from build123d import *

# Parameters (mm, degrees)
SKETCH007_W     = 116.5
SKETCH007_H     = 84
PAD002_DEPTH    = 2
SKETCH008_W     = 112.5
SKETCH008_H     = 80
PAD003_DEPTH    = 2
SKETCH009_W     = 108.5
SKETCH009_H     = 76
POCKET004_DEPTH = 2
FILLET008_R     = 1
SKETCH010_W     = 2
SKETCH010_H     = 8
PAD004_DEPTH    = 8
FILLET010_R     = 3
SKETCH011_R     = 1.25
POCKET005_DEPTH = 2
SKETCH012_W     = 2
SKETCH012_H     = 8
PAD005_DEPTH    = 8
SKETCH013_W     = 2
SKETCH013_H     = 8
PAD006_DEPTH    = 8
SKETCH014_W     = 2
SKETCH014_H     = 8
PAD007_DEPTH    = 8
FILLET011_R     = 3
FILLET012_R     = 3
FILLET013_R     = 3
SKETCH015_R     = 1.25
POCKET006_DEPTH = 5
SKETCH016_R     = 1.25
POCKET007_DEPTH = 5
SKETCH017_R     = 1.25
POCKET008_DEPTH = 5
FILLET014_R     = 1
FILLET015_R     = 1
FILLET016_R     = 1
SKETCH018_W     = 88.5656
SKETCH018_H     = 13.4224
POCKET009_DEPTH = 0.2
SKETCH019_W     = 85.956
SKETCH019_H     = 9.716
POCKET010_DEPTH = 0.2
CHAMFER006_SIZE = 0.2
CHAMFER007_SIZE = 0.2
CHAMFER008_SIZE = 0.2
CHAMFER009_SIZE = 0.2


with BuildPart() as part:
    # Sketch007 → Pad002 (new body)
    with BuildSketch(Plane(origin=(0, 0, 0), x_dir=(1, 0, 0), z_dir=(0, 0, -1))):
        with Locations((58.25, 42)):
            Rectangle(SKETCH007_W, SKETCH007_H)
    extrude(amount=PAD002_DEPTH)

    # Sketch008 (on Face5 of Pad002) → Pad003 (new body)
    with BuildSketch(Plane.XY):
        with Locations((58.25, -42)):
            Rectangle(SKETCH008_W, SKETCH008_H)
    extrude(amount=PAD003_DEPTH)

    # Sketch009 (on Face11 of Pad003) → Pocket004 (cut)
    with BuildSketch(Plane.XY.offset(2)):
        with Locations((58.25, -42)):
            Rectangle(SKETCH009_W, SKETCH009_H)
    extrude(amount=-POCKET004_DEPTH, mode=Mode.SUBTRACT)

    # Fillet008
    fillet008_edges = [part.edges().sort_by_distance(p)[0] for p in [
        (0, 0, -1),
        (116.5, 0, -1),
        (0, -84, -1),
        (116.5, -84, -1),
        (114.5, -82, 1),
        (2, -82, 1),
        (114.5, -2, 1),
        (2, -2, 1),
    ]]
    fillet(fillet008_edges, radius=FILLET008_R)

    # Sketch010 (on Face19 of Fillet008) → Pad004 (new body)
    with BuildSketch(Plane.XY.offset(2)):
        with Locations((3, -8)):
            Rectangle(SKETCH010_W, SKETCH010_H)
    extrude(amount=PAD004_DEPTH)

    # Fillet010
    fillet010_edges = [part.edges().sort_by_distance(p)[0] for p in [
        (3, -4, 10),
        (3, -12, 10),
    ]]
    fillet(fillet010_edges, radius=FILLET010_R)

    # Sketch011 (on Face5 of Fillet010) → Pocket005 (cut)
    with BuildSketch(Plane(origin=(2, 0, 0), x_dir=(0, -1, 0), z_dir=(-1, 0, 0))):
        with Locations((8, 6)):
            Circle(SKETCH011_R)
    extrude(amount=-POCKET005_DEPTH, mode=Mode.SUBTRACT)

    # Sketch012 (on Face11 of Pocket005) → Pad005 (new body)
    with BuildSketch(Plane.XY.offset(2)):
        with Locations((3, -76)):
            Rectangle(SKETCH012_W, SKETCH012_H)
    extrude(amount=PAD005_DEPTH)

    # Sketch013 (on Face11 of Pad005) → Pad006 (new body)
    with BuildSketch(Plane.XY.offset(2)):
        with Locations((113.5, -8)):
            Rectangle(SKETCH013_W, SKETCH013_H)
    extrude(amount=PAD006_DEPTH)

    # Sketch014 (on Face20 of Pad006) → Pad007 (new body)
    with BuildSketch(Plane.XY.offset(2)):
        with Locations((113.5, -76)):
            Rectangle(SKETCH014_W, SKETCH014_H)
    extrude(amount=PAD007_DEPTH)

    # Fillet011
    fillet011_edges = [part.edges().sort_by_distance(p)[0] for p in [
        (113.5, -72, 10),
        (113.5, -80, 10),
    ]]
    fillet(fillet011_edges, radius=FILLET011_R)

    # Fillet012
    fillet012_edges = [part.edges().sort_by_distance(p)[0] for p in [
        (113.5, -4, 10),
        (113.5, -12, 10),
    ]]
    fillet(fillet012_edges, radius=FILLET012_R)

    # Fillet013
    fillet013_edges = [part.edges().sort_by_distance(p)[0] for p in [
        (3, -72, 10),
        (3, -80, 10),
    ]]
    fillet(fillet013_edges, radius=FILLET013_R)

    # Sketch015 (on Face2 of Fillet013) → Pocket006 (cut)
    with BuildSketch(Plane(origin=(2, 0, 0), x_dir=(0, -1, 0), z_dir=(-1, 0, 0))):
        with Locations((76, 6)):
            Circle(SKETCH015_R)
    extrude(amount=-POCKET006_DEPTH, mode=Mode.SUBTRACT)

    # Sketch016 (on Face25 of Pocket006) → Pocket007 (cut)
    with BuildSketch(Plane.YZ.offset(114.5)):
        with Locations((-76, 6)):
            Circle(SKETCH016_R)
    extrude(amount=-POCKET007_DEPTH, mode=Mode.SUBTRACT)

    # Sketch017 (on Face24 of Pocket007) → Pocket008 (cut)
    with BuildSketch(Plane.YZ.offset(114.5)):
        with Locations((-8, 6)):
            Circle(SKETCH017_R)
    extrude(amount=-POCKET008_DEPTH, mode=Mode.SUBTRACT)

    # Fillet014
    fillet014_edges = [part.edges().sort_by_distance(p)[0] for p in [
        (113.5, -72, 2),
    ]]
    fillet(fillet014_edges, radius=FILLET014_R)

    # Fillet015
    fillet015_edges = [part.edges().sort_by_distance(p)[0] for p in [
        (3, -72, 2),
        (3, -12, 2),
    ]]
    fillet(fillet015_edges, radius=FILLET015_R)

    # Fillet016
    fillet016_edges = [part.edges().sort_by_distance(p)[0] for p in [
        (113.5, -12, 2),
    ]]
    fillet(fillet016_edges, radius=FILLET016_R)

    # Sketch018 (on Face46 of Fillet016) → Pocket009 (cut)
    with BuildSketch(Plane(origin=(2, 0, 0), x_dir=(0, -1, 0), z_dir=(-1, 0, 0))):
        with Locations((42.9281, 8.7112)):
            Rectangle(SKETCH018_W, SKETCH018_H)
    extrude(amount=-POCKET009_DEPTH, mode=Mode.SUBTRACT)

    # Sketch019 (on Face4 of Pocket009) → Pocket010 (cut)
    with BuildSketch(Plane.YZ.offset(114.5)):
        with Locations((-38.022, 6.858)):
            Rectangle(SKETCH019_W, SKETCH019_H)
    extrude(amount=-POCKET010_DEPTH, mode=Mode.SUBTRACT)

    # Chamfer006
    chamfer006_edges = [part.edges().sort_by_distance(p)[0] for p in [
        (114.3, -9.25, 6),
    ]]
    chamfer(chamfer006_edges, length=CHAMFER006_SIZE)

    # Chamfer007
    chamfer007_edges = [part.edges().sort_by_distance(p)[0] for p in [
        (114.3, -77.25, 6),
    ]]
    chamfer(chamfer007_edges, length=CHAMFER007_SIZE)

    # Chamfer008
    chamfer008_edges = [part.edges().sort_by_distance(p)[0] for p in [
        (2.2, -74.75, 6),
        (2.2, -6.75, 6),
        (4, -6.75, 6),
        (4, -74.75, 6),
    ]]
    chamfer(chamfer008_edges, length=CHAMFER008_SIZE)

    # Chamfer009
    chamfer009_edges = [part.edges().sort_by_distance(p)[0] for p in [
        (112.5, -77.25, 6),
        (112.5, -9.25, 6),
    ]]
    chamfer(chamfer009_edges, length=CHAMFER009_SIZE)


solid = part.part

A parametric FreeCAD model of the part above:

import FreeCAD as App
import Part
import Sketcher

V = App.Vector


def edges_at(feature, points):
    """Names of the edges that pass closest to the given points."""
    edges = feature.Shape.Edges
    near = lambda p: min(range(len(edges)), key=lambda i: edges[i].distToShape(Part.Vertex(*p))[0])
    return sorted({f"Edge{near(p) + 1}" for p in points})

doc = App.newDocument("Part")
body = doc.addObject("PartDesign::Body", "Body")

# Sketch on XY plane
sketch1 = doc.addObject("Sketcher::SketchObject", "Sketch")
body.addObject(sketch1)
sketch1.AttachmentSupport = (doc.XY_Plane, [""])
sketch1.MapMode = "FlatFace"
sketch1.addGeometry(Part.LineSegment(V(0, -84, 0), V(0, 0, 0)), False)
sketch1.addGeometry(Part.LineSegment(V(0, 0, 0), V(116, 0, 0)), False)
sketch1.addGeometry(Part.LineSegment(V(116, 0, 0), V(116, -84, 0)), False)
sketch1.addGeometry(Part.LineSegment(V(116, -84, 0), V(0, -84, 0)), False)
sketch1.addConstraint(Sketcher.Constraint("Coincident", 0, 2, 1, 1))
sketch1.addConstraint(Sketcher.Constraint("Coincident", 1, 2, 2, 1))
sketch1.addConstraint(Sketcher.Constraint("Coincident", 2, 2, 3, 1))
sketch1.addConstraint(Sketcher.Constraint("Coincident", 3, 2, 0, 1))
sketch1.addConstraint(Sketcher.Constraint("Vertical", 0))
sketch1.addConstraint(Sketcher.Constraint("Horizontal", 1))
sketch1.addConstraint(Sketcher.Constraint("Vertical", 2))
sketch1.addConstraint(Sketcher.Constraint("Horizontal", 3))
sketch1.addConstraint(Sketcher.Constraint("Coincident", 0, 2, -1, 1))
sketch1.addConstraint(Sketcher.Constraint("DistanceY", 0, 1, 0, 2, 84.0))
sketch1.addConstraint(Sketcher.Constraint("DistanceX", 1, 1, 1, 2, 116.5))
pad1 = doc.addObject("PartDesign::Pad", "Pad")
body.addObject(pad1)
pad1.Profile = sketch1
pad1.Length = 2
pad1.Reversed = True

# Sketch on XY plane
sketch2 = doc.addObject("Sketcher::SketchObject", "Sketch001")
body.addObject(sketch2)
sketch2.AttachmentSupport = (doc.XY_Plane, [""])
sketch2.MapMode = "FlatFace"
sketch2.addGeometry(Part.LineSegment(V(2, -2, 0), V(2, -82, 0)), False)
sketch2.addGeometry(Part.LineSegment(V(2, -82, 0), V(114, -82, 0)), False)
sketch2.addGeometry(Part.LineSegment(V(114, -82, 0), V(114, -2, 0)), False)
sketch2.addGeometry(Part.LineSegment(V(114, -2, 0), V(2, -2, 0)), False)
sketch2.addConstraint(Sketcher.Constraint("Coincident", 0, 2, 1, 1))
sketch2.addConstraint(Sketcher.Constraint("Coincident", 1, 2, 2, 1))
sketch2.addConstraint(Sketcher.Constraint("Coincident", 2, 2, 3, 1))
sketch2.addConstraint(Sketcher.Constraint("Coincident", 3, 2, 0, 1))
sketch2.addConstraint(Sketcher.Constraint("Vertical", 0))
sketch2.addConstraint(Sketcher.Constraint("Horizontal", 1))
sketch2.addConstraint(Sketcher.Constraint("Vertical", 2))
sketch2.addConstraint(Sketcher.Constraint("Horizontal", 3))
sketch2.addConstraint(Sketcher.Constraint("DistanceY", 0, 2, 0, 1, 80.0))
sketch2.addConstraint(Sketcher.Constraint("DistanceX", 1, 1, 1, 2, 112.5))
sketch2.addConstraint(Sketcher.Constraint("DistanceX", -1, 1, 0, 2, 2.0))
sketch2.addConstraint(Sketcher.Constraint("DistanceY", 0, 2, -1, 1, 82.0))
pad2 = doc.addObject("PartDesign::Pad", "Pad001")
body.addObject(pad2)
pad2.Profile = sketch2
pad2.Length = 2

# Sketch on XY plane
sketch3 = doc.addObject("Sketcher::SketchObject", "Sketch002")
body.addObject(sketch3)
sketch3.AttachmentSupport = (doc.XY_Plane, [""])
sketch3.MapMode = "FlatFace"
sketch3.AttachmentOffset = App.Placement(V(0, 0, 2), App.Rotation())
sketch3.addGeometry(Part.LineSegment(V(4, -4, 0), V(4, -80, 0)), False)
sketch3.addGeometry(Part.LineSegment(V(4, -80, 0), V(112, -80, 0)), False)
sketch3.addGeometry(Part.LineSegment(V(112, -80, 0), V(112, -4, 0)), False)
sketch3.addGeometry(Part.LineSegment(V(112, -4, 0), V(4, -4, 0)), False)
sketch3.addConstraint(Sketcher.Constraint("Coincident", 0, 2, 1, 1))
sketch3.addConstraint(Sketcher.Constraint("Coincident", 1, 2, 2, 1))
sketch3.addConstraint(Sketcher.Constraint("Coincident", 2, 2, 3, 1))
sketch3.addConstraint(Sketcher.Constraint("Coincident", 3, 2, 0, 1))
sketch3.addConstraint(Sketcher.Constraint("Vertical", 0))
sketch3.addConstraint(Sketcher.Constraint("Horizontal", 1))
sketch3.addConstraint(Sketcher.Constraint("Vertical", 2))
sketch3.addConstraint(Sketcher.Constraint("Horizontal", 3))
sketch3.addConstraint(Sketcher.Constraint("DistanceY", 0, 2, 0, 1, 76.0))
sketch3.addConstraint(Sketcher.Constraint("DistanceX", 1, 1, 1, 2, 108.5))
sketch3.addConstraint(Sketcher.Constraint("DistanceX", -1, 1, 0, 2, 4.0))
sketch3.addConstraint(Sketcher.Constraint("DistanceY", 0, 2, -1, 1, 80.0))
pocket1 = doc.addObject("PartDesign::Pocket", "Pocket")
body.addObject(pocket1)
pocket1.Profile = sketch3
pocket1.Length = 2
doc.recompute()

fillet = doc.addObject("PartDesign::Fillet", "Fillet")
body.addObject(fillet)
fillet.Base = (pocket1, edges_at(pocket1, [
    (0, 0, -1),
    (116.5, 0, -1),
    (0, -84, -1),
    (116.5, -84, -1),
    (114.5, -82, 1),
    (2, -82, 1),
    (114.5, -2, 1),
    (2, -2, 1),
]))
fillet.Radius = 1

# Sketch on XY plane
sketch4 = doc.addObject("Sketcher::SketchObject", "Sketch003")
body.addObject(sketch4)
sketch4.AttachmentSupport = (doc.XY_Plane, [""])
sketch4.MapMode = "FlatFace"
sketch4.AttachmentOffset = App.Placement(V(0, 0, 2), App.Rotation())
sketch4.addGeometry(Part.LineSegment(V(2, -4, 0), V(2, -12, 0)), False)
sketch4.addGeometry(Part.LineSegment(V(2, -12, 0), V(4, -12, 0)), False)
sketch4.addGeometry(Part.LineSegment(V(4, -12, 0), V(4, -4, 0)), False)
sketch4.addGeometry(Part.LineSegment(V(4, -4, 0), V(2, -4, 0)), False)
sketch4.addConstraint(Sketcher.Constraint("Coincident", 0, 2, 1, 1))
sketch4.addConstraint(Sketcher.Constraint("Coincident", 1, 2, 2, 1))
sketch4.addConstraint(Sketcher.Constraint("Coincident", 2, 2, 3, 1))
sketch4.addConstraint(Sketcher.Constraint("Coincident", 3, 2, 0, 1))
sketch4.addConstraint(Sketcher.Constraint("Vertical", 0))
sketch4.addConstraint(Sketcher.Constraint("Horizontal", 1))
sketch4.addConstraint(Sketcher.Constraint("Vertical", 2))
sketch4.addConstraint(Sketcher.Constraint("Horizontal", 3))
sketch4.addConstraint(Sketcher.Constraint("DistanceX", 1, 1, 1, 2, 2.0))
sketch4.addConstraint(Sketcher.Constraint("DistanceY", 0, 2, 0, 1, 8.0))
sketch4.addConstraint(Sketcher.Constraint("DistanceX", -1, 1, 0, 2, 2.0))
sketch4.addConstraint(Sketcher.Constraint("DistanceY", 0, 2, -1, 1, 12.0))
pad3 = doc.addObject("PartDesign::Pad", "Pad002")
body.addObject(pad3)
pad3.Profile = sketch4
pad3.Length = 8
doc.recompute()

fillet2 = doc.addObject("PartDesign::Fillet", "Fillet001")
body.addObject(fillet2)
fillet2.Base = (pad3, edges_at(pad3, [(3, -4, 10), (3, -12, 10)]))
fillet2.Radius = 3

# Sketch on YZ plane
sketch5 = doc.addObject("Sketcher::SketchObject", "Sketch004")
body.addObject(sketch5)
sketch5.AttachmentSupport = (doc.YZ_Plane, [""])
sketch5.MapMode = "FlatFace"
sketch5.AttachmentOffset = App.Placement(V(0, 0, 2), App.Rotation())
sketch5.addGeometry(Part.Circle(V(-8, 6, 0), V(0, 0, 1), 1.2), False)
sketch5.addConstraint(Sketcher.Constraint("Diameter", 0, 2.5))
sketch5.addConstraint(Sketcher.Constraint("DistanceX", 0, 3, -1, 1, 8.0))
sketch5.addConstraint(Sketcher.Constraint("DistanceY", -1, 1, 0, 3, 6.0))
pocket2 = doc.addObject("PartDesign::Pocket", "Pocket001")
body.addObject(pocket2)
pocket2.Profile = sketch5
pocket2.Length = 2
pocket2.Reversed = True

# Sketch on XY plane
sketch6 = doc.addObject("Sketcher::SketchObject", "Sketch005")
body.addObject(sketch6)
sketch6.AttachmentSupport = (doc.XY_Plane, [""])
sketch6.MapMode = "FlatFace"
sketch6.AttachmentOffset = App.Placement(V(0, 0, 2), App.Rotation())
sketch6.addGeometry(Part.LineSegment(V(2, -72, 0), V(2, -80, 0)), False)
sketch6.addGeometry(Part.LineSegment(V(2, -80, 0), V(4, -80, 0)), False)
sketch6.addGeometry(Part.LineSegment(V(4, -80, 0), V(4, -72, 0)), False)
sketch6.addGeometry(Part.LineSegment(V(4, -72, 0), V(2, -72, 0)), False)
sketch6.addConstraint(Sketcher.Constraint("Coincident", 0, 2, 1, 1))
sketch6.addConstraint(Sketcher.Constraint("Coincident", 1, 2, 2, 1))
sketch6.addConstraint(Sketcher.Constraint("Coincident", 2, 2, 3, 1))
sketch6.addConstraint(Sketcher.Constraint("Coincident", 3, 2, 0, 1))
sketch6.addConstraint(Sketcher.Constraint("Vertical", 0))
sketch6.addConstraint(Sketcher.Constraint("Horizontal", 1))
sketch6.addConstraint(Sketcher.Constraint("Vertical", 2))
sketch6.addConstraint(Sketcher.Constraint("Horizontal", 3))
sketch6.addConstraint(Sketcher.Constraint("DistanceX", 1, 1, 1, 2, 2.0))
sketch6.addConstraint(Sketcher.Constraint("DistanceY", 0, 2, 0, 1, 8.0))
sketch6.addConstraint(Sketcher.Constraint("DistanceX", -1, 1, 0, 2, 2.0))
sketch6.addConstraint(Sketcher.Constraint("DistanceY", 0, 2, -1, 1, 80.0))
pad4 = doc.addObject("PartDesign::Pad", "Pad003")
body.addObject(pad4)
pad4.Profile = sketch6
pad4.Length = 8

# Sketch on XY plane
sketch7 = doc.addObject("Sketcher::SketchObject", "Sketch006")
body.addObject(sketch7)
sketch7.AttachmentSupport = (doc.XY_Plane, [""])
sketch7.MapMode = "FlatFace"
sketch7.AttachmentOffset = App.Placement(V(0, 0, 2), App.Rotation())
sketch7.addGeometry(Part.LineSegment(V(112.5, -4, 0), V(112.5, -12, 0)), False)
sketch7.addGeometry(Part.LineSegment(V(112.5, -12, 0), V(114.5, -12, 0)), False)
sketch7.addGeometry(Part.LineSegment(V(114.5, -12, 0), V(114.5, -4, 0)), False)
sketch7.addGeometry(Part.LineSegment(V(114.5, -4, 0), V(112.5, -4, 0)), False)
sketch7.addConstraint(Sketcher.Constraint("Coincident", 0, 2, 1, 1))
sketch7.addConstraint(Sketcher.Constraint("Coincident", 1, 2, 2, 1))
sketch7.addConstraint(Sketcher.Constraint("Coincident", 2, 2, 3, 1))
sketch7.addConstraint(Sketcher.Constraint("Coincident", 3, 2, 0, 1))
sketch7.addConstraint(Sketcher.Constraint("Vertical", 0))
sketch7.addConstraint(Sketcher.Constraint("Horizontal", 1))
sketch7.addConstraint(Sketcher.Constraint("Vertical", 2))
sketch7.addConstraint(Sketcher.Constraint("Horizontal", 3))
sketch7.addConstraint(Sketcher.Constraint("DistanceX", 1, 1, 1, 2, 2.0))
sketch7.addConstraint(Sketcher.Constraint("DistanceY", 0, 2, 0, 1, 8.0))
sketch7.addConstraint(Sketcher.Constraint("DistanceY", 0, 2, -1, 1, 12.0))
sketch7.addConstraint(Sketcher.Constraint("DistanceX", -1, 1, 0, 2, 112.5))
pad5 = doc.addObject("PartDesign::Pad", "Pad004")
body.addObject(pad5)
pad5.Profile = sketch7
pad5.Length = 8

# Sketch on XY plane
sketch8 = doc.addObject("Sketcher::SketchObject", "Sketch007")
body.addObject(sketch8)
sketch8.AttachmentSupport = (doc.XY_Plane, [""])
sketch8.MapMode = "FlatFace"
sketch8.AttachmentOffset = App.Placement(V(0, 0, 2), App.Rotation())
sketch8.addGeometry(Part.LineSegment(V(112.5, -72, 0), V(112.5, -80, 0)), False)
sketch8.addGeometry(Part.LineSegment(V(112.5, -80, 0), V(114.5, -80, 0)), False)
sketch8.addGeometry(Part.LineSegment(V(114.5, -80, 0), V(114.5, -72, 0)), False)
sketch8.addGeometry(Part.LineSegment(V(114.5, -72, 0), V(112.5, -72, 0)), False)
sketch8.addConstraint(Sketcher.Constraint("Coincident", 0, 2, 1, 1))
sketch8.addConstraint(Sketcher.Constraint("Coincident", 1, 2, 2, 1))
sketch8.addConstraint(Sketcher.Constraint("Coincident", 2, 2, 3, 1))
sketch8.addConstraint(Sketcher.Constraint("Coincident", 3, 2, 0, 1))
sketch8.addConstraint(Sketcher.Constraint("Vertical", 0))
sketch8.addConstraint(Sketcher.Constraint("Horizontal", 1))
sketch8.addConstraint(Sketcher.Constraint("Vertical", 2))
sketch8.addConstraint(Sketcher.Constraint("Horizontal", 3))
sketch8.addConstraint(Sketcher.Constraint("DistanceX", 1, 1, 1, 2, 2.0))
sketch8.addConstraint(Sketcher.Constraint("DistanceY", 0, 2, 0, 1, 8.0))
sketch8.addConstraint(Sketcher.Constraint("DistanceY", 0, 2, -1, 1, 80.0))
sketch8.addConstraint(Sketcher.Constraint("DistanceX", -1, 1, 0, 2, 112.5))
pad6 = doc.addObject("PartDesign::Pad", "Pad005")
body.addObject(pad6)
pad6.Profile = sketch8
pad6.Length = 8
doc.recompute()

fillet3 = doc.addObject("PartDesign::Fillet", "Fillet002")
body.addObject(fillet3)
fillet3.Base = (pad6, edges_at(pad6, [(113.5, -72, 10), (113.5, -80, 10)]))
fillet3.Radius = 3
doc.recompute()

fillet4 = doc.addObject("PartDesign::Fillet", "Fillet003")
body.addObject(fillet4)
fillet4.Base = (fillet3, edges_at(fillet3, [(113.5, -4, 10), (113.5, -12, 10)]))
fillet4.Radius = 3
doc.recompute()

fillet5 = doc.addObject("PartDesign::Fillet", "Fillet004")
body.addObject(fillet5)
fillet5.Base = (fillet4, edges_at(fillet4, [(3, -72, 10), (3, -80, 10)]))
fillet5.Radius = 3

# Sketch on YZ plane
sketch9 = doc.addObject("Sketcher::SketchObject", "Sketch008")
body.addObject(sketch9)
sketch9.AttachmentSupport = (doc.YZ_Plane, [""])
sketch9.MapMode = "FlatFace"
sketch9.AttachmentOffset = App.Placement(V(0, 0, 2), App.Rotation())
sketch9.addGeometry(Part.Circle(V(-76, 6, 0), V(0, 0, 1), 1.2), False)
sketch9.addConstraint(Sketcher.Constraint("Diameter", 0, 2.5))
sketch9.addConstraint(Sketcher.Constraint("DistanceX", 0, 3, -1, 1, 76.0))
sketch9.addConstraint(Sketcher.Constraint("DistanceY", -1, 1, 0, 3, 6.0))
pocket3 = doc.addObject("PartDesign::Pocket", "Pocket002")
body.addObject(pocket3)
pocket3.Profile = sketch9
pocket3.Length = 5
pocket3.Reversed = True

# Sketch on YZ plane
sketch10 = doc.addObject("Sketcher::SketchObject", "Sketch009")
body.addObject(sketch10)
sketch10.AttachmentSupport = (doc.YZ_Plane, [""])
sketch10.MapMode = "FlatFace"
sketch10.AttachmentOffset = App.Placement(V(0, 0, 114.5), App.Rotation())
sketch10.addGeometry(Part.Circle(V(-76, 6, 0), V(0, 0, 1), 1.2), False)
sketch10.addConstraint(Sketcher.Constraint("Diameter", 0, 2.5))
sketch10.addConstraint(Sketcher.Constraint("DistanceX", 0, 3, -1, 1, 76.0))
sketch10.addConstraint(Sketcher.Constraint("DistanceY", -1, 1, 0, 3, 6.0))
pocket4 = doc.addObject("PartDesign::Pocket", "Pocket003")
body.addObject(pocket4)
pocket4.Profile = sketch10
pocket4.Length = 5

# Sketch on YZ plane
sketch11 = doc.addObject("Sketcher::SketchObject", "Sketch010")
body.addObject(sketch11)
sketch11.AttachmentSupport = (doc.YZ_Plane, [""])
sketch11.MapMode = "FlatFace"
sketch11.AttachmentOffset = App.Placement(V(0, 0, 114.5), App.Rotation())
sketch11.addGeometry(Part.Circle(V(-8, 6, 0), V(0, 0, 1), 1.2), False)
sketch11.addConstraint(Sketcher.Constraint("Diameter", 0, 2.5))
sketch11.addConstraint(Sketcher.Constraint("DistanceX", 0, 3, -1, 1, 8.0))
sketch11.addConstraint(Sketcher.Constraint("DistanceY", -1, 1, 0, 3, 6.0))
pocket5 = doc.addObject("PartDesign::Pocket", "Pocket004")
body.addObject(pocket5)
pocket5.Profile = sketch11
pocket5.Length = 5
doc.recompute()

fillet6 = doc.addObject("PartDesign::Fillet", "Fillet005")
body.addObject(fillet6)
fillet6.Base = (pocket5, edges_at(pocket5, [(113.5, -72, 2)]))
fillet6.Radius = 1
doc.recompute()

fillet7 = doc.addObject("PartDesign::Fillet", "Fillet006")
body.addObject(fillet7)
fillet7.Base = (fillet6, edges_at(fillet6, [(3, -72, 2), (3, -12, 2)]))
fillet7.Radius = 1
doc.recompute()

fillet8 = doc.addObject("PartDesign::Fillet", "Fillet007")
body.addObject(fillet8)
fillet8.Base = (fillet7, edges_at(fillet7, [(113.5, -12, 2)]))
fillet8.Radius = 1

# Sketch on YZ plane
sketch12 = doc.addObject("Sketcher::SketchObject", "Sketch011")
body.addObject(sketch12)
sketch12.AttachmentSupport = (doc.YZ_Plane, [""])
sketch12.MapMode = "FlatFace"
sketch12.AttachmentOffset = App.Placement(V(0, 0, 2), App.Rotation())
sketch12.addGeometry(Part.LineSegment(V(1, 15, 0), V(1, 2, 0)), False)
sketch12.addGeometry(Part.LineSegment(V(1, 2, 0), V(-87, 2, 0)), False)
sketch12.addGeometry(Part.LineSegment(V(-87, 2, 0), V(-87, 15, 0)), False)
sketch12.addGeometry(Part.LineSegment(V(-87, 15, 0), V(1, 15, 0)), False)
sketch12.addConstraint(Sketcher.Constraint("Coincident", 0, 2, 1, 1))
sketch12.addConstraint(Sketcher.Constraint("Coincident", 1, 2, 2, 1))
sketch12.addConstraint(Sketcher.Constraint("Coincident", 2, 2, 3, 1))
sketch12.addConstraint(Sketcher.Constraint("Coincident", 3, 2, 0, 1))
sketch12.addConstraint(Sketcher.Constraint("Vertical", 0))
sketch12.addConstraint(Sketcher.Constraint("Horizontal", 1))
sketch12.addConstraint(Sketcher.Constraint("Vertical", 2))
sketch12.addConstraint(Sketcher.Constraint("Horizontal", 3))
sketch12.addConstraint(Sketcher.Constraint("DistanceY", -1, 1, 0, 2, 2.0))
sketch12.addConstraint(Sketcher.Constraint("DistanceX", 1, 2, 1, 1, 88.5656))
sketch12.addConstraint(Sketcher.Constraint("DistanceY", 0, 2, 0, 1, 13.4224))
sketch12.addConstraint(Sketcher.Constraint("DistanceX", -1, 1, 0, 2, 1.3547))
pocket6 = doc.addObject("PartDesign::Pocket", "Pocket005")
body.addObject(pocket6)
pocket6.Profile = sketch12
pocket6.Length = 0.2
pocket6.Reversed = True

# Sketch on YZ plane
sketch13 = doc.addObject("Sketcher::SketchObject", "Sketch012")
body.addObject(sketch13)
sketch13.AttachmentSupport = (doc.YZ_Plane, [""])
sketch13.MapMode = "FlatFace"
sketch13.AttachmentOffset = App.Placement(V(0, 0, 114.5), App.Rotation())
sketch13.addGeometry(Part.LineSegment(V(-81, 12, 0), V(-81, 2, 0)), False)
sketch13.addGeometry(Part.LineSegment(V(-81, 2, 0), V(5, 2, 0)), False)
sketch13.addGeometry(Part.LineSegment(V(5, 2, 0), V(5, 12, 0)), False)
sketch13.addGeometry(Part.LineSegment(V(5, 12, 0), V(-81, 12, 0)), False)
sketch13.addConstraint(Sketcher.Constraint("Coincident", 0, 2, 1, 1))
sketch13.addConstraint(Sketcher.Constraint("Coincident", 1, 2, 2, 1))
sketch13.addConstraint(Sketcher.Constraint("Coincident", 2, 2, 3, 1))
sketch13.addConstraint(Sketcher.Constraint("Coincident", 3, 2, 0, 1))
sketch13.addConstraint(Sketcher.Constraint("Vertical", 0))
sketch13.addConstraint(Sketcher.Constraint("Horizontal", 1))
sketch13.addConstraint(Sketcher.Constraint("Vertical", 2))
sketch13.addConstraint(Sketcher.Constraint("Horizontal", 3))
sketch13.addConstraint(Sketcher.Constraint("DistanceX", 0, 2, -1, 1, 81.0))
sketch13.addConstraint(Sketcher.Constraint("DistanceY", -1, 1, 0, 2, 2.0))
sketch13.addConstraint(Sketcher.Constraint("DistanceX", 1, 1, 1, 2, 85.956))
sketch13.addConstraint(Sketcher.Constraint("DistanceY", 0, 2, 0, 1, 9.716))
pocket7 = doc.addObject("PartDesign::Pocket", "Pocket006")
body.addObject(pocket7)
pocket7.Profile = sketch13
pocket7.Length = 0.2
doc.recompute()

chamfer = doc.addObject("PartDesign::Chamfer", "Chamfer")
body.addObject(chamfer)
chamfer.Base = (pocket7, edges_at(pocket7, [(114.3, -9.25, 6)]))
chamfer.Size = 0.2
doc.recompute()

chamfer2 = doc.addObject("PartDesign::Chamfer", "Chamfer001")
body.addObject(chamfer2)
chamfer2.Base = (chamfer, edges_at(chamfer, [(114.3, -77.25, 6)]))
chamfer2.Size = 0.2
doc.recompute()

chamfer3 = doc.addObject("PartDesign::Chamfer", "Chamfer002")
body.addObject(chamfer3)
chamfer3.Base = (chamfer2, edges_at(chamfer2, [
    (2.2, -74.75, 6),
    (2.2, -6.75, 6),
    (4, -6.75, 6),
    (4, -74.75, 6),
]))
chamfer3.Size = 0.2
doc.recompute()

chamfer4 = doc.addObject("PartDesign::Chamfer", "Chamfer003")
body.addObject(chamfer4)
chamfer4.Base = (chamfer3, edges_at(chamfer3, [(112.5, -77.25, 6), (112.5, -9.25, 6)]))
chamfer4.Size = 0.2

doc.recompute()
